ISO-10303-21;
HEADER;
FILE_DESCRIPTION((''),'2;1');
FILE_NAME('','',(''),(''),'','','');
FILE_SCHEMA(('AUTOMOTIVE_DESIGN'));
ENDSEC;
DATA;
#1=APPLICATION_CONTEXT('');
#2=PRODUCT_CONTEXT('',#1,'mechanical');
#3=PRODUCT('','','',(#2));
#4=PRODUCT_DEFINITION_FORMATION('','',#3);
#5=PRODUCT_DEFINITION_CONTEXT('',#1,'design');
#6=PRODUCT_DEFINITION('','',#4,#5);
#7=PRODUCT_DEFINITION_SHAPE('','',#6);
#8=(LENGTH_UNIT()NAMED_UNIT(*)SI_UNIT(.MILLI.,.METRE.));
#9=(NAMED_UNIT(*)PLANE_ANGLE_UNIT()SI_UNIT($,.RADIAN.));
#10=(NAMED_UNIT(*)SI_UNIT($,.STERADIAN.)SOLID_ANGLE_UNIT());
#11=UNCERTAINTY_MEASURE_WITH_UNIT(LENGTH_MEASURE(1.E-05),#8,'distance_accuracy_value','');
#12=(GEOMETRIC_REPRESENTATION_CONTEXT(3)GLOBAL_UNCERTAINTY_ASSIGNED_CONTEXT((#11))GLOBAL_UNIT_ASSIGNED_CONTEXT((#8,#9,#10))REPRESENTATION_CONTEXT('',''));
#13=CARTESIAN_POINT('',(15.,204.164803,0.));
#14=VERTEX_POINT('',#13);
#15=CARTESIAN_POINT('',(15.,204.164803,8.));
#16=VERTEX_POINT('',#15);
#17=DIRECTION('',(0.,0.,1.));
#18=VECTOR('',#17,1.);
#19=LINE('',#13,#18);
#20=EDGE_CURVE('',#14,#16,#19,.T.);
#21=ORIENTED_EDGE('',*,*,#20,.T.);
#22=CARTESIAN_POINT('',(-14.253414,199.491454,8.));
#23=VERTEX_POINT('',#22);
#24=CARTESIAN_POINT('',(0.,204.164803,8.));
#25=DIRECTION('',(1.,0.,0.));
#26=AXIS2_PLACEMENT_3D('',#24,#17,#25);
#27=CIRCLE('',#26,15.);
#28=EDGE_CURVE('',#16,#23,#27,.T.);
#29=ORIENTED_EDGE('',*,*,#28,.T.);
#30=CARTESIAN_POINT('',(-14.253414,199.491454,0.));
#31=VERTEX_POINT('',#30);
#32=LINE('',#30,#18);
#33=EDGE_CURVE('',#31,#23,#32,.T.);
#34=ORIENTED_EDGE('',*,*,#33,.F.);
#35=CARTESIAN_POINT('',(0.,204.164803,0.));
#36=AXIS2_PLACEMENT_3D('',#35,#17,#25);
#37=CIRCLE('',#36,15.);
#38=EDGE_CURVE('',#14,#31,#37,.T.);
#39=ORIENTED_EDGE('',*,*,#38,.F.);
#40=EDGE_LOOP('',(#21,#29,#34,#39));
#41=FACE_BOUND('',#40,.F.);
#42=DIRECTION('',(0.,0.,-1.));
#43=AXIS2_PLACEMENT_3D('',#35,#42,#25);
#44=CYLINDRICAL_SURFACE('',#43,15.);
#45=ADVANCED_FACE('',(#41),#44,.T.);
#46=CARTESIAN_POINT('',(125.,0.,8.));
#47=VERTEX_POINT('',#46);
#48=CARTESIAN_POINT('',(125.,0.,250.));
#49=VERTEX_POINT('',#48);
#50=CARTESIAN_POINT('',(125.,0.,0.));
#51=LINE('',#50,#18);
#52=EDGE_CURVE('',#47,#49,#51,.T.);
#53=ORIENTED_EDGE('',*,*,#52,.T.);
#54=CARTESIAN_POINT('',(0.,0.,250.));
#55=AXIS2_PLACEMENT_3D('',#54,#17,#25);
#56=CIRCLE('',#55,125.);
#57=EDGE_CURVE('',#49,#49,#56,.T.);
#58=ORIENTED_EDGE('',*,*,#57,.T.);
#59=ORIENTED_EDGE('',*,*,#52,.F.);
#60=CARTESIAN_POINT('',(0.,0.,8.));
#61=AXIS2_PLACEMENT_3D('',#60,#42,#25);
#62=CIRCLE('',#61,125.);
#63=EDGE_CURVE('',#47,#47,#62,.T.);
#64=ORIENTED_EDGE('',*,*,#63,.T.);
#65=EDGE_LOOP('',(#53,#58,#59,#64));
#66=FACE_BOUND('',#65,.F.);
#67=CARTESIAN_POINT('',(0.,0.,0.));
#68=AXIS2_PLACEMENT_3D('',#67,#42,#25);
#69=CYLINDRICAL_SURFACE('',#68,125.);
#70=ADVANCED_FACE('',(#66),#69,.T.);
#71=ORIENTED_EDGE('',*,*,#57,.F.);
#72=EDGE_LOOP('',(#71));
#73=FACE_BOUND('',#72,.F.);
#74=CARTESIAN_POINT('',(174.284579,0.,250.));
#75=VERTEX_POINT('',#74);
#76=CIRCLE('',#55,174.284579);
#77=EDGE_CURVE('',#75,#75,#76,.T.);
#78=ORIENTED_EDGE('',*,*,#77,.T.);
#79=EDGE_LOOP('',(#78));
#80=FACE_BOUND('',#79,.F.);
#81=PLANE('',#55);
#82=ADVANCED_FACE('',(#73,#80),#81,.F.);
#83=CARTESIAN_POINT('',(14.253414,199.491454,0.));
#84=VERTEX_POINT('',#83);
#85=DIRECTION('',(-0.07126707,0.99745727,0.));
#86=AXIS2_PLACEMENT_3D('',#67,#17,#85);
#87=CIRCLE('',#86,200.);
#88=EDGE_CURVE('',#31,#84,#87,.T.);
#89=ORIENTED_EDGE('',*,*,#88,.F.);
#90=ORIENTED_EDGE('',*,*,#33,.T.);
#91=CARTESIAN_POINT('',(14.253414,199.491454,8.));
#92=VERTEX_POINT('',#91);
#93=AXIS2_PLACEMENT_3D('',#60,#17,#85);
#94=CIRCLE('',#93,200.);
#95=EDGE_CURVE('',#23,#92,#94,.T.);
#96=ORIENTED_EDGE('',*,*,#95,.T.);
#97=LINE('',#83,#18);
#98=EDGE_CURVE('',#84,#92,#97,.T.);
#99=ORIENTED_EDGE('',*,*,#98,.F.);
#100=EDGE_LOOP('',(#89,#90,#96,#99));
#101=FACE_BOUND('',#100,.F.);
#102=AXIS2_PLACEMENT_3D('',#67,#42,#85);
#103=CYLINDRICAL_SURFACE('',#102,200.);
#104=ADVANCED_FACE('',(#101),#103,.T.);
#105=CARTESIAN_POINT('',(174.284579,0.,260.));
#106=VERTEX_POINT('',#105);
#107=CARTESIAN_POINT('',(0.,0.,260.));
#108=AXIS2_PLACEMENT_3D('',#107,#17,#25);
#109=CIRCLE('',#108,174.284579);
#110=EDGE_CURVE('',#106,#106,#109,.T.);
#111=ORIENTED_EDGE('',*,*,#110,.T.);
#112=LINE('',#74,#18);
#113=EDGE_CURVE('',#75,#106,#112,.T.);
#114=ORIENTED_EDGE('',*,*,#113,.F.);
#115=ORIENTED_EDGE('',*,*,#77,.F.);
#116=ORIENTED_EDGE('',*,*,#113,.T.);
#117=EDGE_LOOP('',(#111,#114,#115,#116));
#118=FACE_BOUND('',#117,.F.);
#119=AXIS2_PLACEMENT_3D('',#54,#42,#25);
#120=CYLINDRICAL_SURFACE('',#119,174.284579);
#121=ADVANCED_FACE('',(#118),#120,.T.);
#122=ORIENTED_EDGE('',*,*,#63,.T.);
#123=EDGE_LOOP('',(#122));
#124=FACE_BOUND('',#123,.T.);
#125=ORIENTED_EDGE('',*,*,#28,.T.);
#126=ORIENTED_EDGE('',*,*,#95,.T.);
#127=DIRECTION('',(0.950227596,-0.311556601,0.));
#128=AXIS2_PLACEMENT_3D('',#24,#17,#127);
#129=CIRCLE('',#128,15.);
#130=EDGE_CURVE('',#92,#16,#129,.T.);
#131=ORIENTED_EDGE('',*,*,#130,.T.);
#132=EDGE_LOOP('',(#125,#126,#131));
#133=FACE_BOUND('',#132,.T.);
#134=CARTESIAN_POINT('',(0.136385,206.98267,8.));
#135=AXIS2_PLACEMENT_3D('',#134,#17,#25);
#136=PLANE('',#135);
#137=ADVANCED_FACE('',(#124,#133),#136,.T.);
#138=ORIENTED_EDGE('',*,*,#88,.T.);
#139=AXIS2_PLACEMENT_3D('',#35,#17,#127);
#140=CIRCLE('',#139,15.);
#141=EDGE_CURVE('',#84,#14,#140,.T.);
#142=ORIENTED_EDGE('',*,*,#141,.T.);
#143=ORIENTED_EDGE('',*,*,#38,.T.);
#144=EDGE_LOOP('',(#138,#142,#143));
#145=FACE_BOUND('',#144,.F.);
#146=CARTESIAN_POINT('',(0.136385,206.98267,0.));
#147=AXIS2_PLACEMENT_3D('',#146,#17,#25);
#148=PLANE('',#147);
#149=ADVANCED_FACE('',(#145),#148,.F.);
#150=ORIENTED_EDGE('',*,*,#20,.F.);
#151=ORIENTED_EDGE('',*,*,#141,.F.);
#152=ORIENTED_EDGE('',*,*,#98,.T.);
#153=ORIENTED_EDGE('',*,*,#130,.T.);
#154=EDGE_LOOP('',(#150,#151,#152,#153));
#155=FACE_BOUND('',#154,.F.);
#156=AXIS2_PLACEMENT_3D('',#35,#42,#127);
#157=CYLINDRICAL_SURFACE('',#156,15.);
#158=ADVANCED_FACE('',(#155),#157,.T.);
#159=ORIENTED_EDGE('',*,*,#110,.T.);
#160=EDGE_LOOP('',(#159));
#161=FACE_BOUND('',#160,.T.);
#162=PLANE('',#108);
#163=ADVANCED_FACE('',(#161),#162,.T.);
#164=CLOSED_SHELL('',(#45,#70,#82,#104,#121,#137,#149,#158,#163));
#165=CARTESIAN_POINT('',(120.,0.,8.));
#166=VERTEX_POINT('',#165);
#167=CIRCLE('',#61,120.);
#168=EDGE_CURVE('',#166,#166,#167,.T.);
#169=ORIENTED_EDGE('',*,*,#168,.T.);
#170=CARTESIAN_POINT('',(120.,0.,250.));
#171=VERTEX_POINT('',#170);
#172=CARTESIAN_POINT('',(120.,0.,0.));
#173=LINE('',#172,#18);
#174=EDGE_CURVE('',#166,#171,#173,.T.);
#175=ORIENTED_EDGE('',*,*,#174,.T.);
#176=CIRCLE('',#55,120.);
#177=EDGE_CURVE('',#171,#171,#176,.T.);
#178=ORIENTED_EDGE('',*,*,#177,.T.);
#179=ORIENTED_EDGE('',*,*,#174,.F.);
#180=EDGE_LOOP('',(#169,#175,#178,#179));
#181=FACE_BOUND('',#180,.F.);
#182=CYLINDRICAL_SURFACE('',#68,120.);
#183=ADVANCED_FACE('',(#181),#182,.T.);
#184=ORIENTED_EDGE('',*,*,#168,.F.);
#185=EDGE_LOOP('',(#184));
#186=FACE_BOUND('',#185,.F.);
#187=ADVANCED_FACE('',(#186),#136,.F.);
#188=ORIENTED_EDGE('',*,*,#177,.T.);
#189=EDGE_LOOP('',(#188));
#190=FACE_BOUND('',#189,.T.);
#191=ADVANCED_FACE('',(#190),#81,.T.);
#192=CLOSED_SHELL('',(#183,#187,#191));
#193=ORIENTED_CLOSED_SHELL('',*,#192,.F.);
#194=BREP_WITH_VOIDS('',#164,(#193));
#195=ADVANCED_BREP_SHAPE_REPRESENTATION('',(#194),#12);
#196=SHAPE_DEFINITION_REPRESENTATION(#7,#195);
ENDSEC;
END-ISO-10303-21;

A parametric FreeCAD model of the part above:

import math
import FreeCAD as App
import Part
import Sketcher

V = App.Vector

doc = App.newDocument("Part")
body = doc.addObject("PartDesign::Body", "Body")

# Sketch on XY plane
sketch1 = body.newObject("Sketcher::SketchObject", "Sketch")
sketch1.AttachmentSupport = (doc.getObject("XY_Plane"), [""])
sketch1.MapMode = "FlatFace"
sketch1.addGeometry(Part.Circle(V(0, 0, 0), V(0, 0, 1), 125), False)
sketch1.addGeometry(Part.Circle(V(0, 0, 0), V(0, 0, 1), 120), False)
sketch1.addConstraint(Sketcher.Constraint("Coincident", 0, 3, -1, 1))
sketch1.addConstraint(Sketcher.Constraint("Coincident", 1, 3, -1, 1))
sketch1.addConstraint(Sketcher.Constraint("Diameter", 0, 250.0))
sketch1.addConstraint(Sketcher.Constraint("Diameter", 1, 240.0))
pad1 = body.newObject("PartDesign::Pad", "Pad")
pad1.Profile = sketch1
pad1.Length = 250

# Sketch on XY plane
sketch2 = body.newObject("Sketcher::SketchObject", "Sketch001")
sketch2.AttachmentSupport = (doc.getObject("XY_Plane"), [""])
sketch2.MapMode = "FlatFace"
sketch2.addGeometry(Part.ArcOfCircle(Part.Circle(V(0, 204.164803, 0), V(0, 0, 1), 15), math.radians(-18.153064), math.radians(0)), False)
sketch2.addGeometry(Part.ArcOfCircle(Part.Circle(V(0, 204.164803, 0), V(0, 0, 1), 15), math.radians(0), math.radians(198.153064)), False)
sketch2.addGeometry(Part.ArcOfCircle(Part.Circle(V(0, 0, 0), V(0, 0, 1), 200), math.radians(94.086767), math.radians(445.913233)), False)
sketch2.addConstraint(Sketcher.Constraint("Tangent", 0, 2, 1, 1))
sketch2.addConstraint(Sketcher.Constraint("Coincident", 1, 2, 2, 1))
sketch2.addConstraint(Sketcher.Constraint("Coincident", 2, 2, 0, 1))
sketch2.addConstraint(Sketcher.Constraint("Coincident", 2, 3, -1, 1))
sketch2.addConstraint(Sketcher.Constraint("Equal", 0, 1))
sketch2.addConstraint(Sketcher.Constraint("PointOnObject", 0, 3, -2))
sketch2.addConstraint(Sketcher.Constraint("Horizontal", 1, 3, 0, 2))
sketch2.addConstraint(Sketcher.Constraint("Radius", 0, 15.0))
sketch2.addConstraint(Sketcher.Constraint("Radius", 2, 200.0))
sketch2.addConstraint(Sketcher.Constraint("DistanceY", 1, 2, 0, 3, 4.673349))
pad2 = body.newObject("PartDesign::Pad", "Pad001")
pad2.Profile = sketch2
pad2.Length = 8

# Sketch on XY plane
sketch3 = body.newObject("Sketcher::SketchObject", "Sketch002")
sketch3.AttachmentSupport = (doc.getObject("XY_Plane"), [""])
sketch3.MapMode = "FlatFace"
sketch3.AttachmentOffset = App.Placement(V(0, 0, 250), App.Rotation())
sketch3.addGeometry(Part.Circle(V(0, 0, 0), V(0, 0, 1), 174.284579), False)
sketch3.addConstraint(Sketcher.Constraint("Coincident", 0, 3, -1, 1))
sketch3.addConstraint(Sketcher.Constraint("Diameter", 0, 348.569158))
pad3 = body.newObject("PartDesign::Pad", "Pad002")
pad3.Profile = sketch3
pad3.Length = 10

doc.recompute()
